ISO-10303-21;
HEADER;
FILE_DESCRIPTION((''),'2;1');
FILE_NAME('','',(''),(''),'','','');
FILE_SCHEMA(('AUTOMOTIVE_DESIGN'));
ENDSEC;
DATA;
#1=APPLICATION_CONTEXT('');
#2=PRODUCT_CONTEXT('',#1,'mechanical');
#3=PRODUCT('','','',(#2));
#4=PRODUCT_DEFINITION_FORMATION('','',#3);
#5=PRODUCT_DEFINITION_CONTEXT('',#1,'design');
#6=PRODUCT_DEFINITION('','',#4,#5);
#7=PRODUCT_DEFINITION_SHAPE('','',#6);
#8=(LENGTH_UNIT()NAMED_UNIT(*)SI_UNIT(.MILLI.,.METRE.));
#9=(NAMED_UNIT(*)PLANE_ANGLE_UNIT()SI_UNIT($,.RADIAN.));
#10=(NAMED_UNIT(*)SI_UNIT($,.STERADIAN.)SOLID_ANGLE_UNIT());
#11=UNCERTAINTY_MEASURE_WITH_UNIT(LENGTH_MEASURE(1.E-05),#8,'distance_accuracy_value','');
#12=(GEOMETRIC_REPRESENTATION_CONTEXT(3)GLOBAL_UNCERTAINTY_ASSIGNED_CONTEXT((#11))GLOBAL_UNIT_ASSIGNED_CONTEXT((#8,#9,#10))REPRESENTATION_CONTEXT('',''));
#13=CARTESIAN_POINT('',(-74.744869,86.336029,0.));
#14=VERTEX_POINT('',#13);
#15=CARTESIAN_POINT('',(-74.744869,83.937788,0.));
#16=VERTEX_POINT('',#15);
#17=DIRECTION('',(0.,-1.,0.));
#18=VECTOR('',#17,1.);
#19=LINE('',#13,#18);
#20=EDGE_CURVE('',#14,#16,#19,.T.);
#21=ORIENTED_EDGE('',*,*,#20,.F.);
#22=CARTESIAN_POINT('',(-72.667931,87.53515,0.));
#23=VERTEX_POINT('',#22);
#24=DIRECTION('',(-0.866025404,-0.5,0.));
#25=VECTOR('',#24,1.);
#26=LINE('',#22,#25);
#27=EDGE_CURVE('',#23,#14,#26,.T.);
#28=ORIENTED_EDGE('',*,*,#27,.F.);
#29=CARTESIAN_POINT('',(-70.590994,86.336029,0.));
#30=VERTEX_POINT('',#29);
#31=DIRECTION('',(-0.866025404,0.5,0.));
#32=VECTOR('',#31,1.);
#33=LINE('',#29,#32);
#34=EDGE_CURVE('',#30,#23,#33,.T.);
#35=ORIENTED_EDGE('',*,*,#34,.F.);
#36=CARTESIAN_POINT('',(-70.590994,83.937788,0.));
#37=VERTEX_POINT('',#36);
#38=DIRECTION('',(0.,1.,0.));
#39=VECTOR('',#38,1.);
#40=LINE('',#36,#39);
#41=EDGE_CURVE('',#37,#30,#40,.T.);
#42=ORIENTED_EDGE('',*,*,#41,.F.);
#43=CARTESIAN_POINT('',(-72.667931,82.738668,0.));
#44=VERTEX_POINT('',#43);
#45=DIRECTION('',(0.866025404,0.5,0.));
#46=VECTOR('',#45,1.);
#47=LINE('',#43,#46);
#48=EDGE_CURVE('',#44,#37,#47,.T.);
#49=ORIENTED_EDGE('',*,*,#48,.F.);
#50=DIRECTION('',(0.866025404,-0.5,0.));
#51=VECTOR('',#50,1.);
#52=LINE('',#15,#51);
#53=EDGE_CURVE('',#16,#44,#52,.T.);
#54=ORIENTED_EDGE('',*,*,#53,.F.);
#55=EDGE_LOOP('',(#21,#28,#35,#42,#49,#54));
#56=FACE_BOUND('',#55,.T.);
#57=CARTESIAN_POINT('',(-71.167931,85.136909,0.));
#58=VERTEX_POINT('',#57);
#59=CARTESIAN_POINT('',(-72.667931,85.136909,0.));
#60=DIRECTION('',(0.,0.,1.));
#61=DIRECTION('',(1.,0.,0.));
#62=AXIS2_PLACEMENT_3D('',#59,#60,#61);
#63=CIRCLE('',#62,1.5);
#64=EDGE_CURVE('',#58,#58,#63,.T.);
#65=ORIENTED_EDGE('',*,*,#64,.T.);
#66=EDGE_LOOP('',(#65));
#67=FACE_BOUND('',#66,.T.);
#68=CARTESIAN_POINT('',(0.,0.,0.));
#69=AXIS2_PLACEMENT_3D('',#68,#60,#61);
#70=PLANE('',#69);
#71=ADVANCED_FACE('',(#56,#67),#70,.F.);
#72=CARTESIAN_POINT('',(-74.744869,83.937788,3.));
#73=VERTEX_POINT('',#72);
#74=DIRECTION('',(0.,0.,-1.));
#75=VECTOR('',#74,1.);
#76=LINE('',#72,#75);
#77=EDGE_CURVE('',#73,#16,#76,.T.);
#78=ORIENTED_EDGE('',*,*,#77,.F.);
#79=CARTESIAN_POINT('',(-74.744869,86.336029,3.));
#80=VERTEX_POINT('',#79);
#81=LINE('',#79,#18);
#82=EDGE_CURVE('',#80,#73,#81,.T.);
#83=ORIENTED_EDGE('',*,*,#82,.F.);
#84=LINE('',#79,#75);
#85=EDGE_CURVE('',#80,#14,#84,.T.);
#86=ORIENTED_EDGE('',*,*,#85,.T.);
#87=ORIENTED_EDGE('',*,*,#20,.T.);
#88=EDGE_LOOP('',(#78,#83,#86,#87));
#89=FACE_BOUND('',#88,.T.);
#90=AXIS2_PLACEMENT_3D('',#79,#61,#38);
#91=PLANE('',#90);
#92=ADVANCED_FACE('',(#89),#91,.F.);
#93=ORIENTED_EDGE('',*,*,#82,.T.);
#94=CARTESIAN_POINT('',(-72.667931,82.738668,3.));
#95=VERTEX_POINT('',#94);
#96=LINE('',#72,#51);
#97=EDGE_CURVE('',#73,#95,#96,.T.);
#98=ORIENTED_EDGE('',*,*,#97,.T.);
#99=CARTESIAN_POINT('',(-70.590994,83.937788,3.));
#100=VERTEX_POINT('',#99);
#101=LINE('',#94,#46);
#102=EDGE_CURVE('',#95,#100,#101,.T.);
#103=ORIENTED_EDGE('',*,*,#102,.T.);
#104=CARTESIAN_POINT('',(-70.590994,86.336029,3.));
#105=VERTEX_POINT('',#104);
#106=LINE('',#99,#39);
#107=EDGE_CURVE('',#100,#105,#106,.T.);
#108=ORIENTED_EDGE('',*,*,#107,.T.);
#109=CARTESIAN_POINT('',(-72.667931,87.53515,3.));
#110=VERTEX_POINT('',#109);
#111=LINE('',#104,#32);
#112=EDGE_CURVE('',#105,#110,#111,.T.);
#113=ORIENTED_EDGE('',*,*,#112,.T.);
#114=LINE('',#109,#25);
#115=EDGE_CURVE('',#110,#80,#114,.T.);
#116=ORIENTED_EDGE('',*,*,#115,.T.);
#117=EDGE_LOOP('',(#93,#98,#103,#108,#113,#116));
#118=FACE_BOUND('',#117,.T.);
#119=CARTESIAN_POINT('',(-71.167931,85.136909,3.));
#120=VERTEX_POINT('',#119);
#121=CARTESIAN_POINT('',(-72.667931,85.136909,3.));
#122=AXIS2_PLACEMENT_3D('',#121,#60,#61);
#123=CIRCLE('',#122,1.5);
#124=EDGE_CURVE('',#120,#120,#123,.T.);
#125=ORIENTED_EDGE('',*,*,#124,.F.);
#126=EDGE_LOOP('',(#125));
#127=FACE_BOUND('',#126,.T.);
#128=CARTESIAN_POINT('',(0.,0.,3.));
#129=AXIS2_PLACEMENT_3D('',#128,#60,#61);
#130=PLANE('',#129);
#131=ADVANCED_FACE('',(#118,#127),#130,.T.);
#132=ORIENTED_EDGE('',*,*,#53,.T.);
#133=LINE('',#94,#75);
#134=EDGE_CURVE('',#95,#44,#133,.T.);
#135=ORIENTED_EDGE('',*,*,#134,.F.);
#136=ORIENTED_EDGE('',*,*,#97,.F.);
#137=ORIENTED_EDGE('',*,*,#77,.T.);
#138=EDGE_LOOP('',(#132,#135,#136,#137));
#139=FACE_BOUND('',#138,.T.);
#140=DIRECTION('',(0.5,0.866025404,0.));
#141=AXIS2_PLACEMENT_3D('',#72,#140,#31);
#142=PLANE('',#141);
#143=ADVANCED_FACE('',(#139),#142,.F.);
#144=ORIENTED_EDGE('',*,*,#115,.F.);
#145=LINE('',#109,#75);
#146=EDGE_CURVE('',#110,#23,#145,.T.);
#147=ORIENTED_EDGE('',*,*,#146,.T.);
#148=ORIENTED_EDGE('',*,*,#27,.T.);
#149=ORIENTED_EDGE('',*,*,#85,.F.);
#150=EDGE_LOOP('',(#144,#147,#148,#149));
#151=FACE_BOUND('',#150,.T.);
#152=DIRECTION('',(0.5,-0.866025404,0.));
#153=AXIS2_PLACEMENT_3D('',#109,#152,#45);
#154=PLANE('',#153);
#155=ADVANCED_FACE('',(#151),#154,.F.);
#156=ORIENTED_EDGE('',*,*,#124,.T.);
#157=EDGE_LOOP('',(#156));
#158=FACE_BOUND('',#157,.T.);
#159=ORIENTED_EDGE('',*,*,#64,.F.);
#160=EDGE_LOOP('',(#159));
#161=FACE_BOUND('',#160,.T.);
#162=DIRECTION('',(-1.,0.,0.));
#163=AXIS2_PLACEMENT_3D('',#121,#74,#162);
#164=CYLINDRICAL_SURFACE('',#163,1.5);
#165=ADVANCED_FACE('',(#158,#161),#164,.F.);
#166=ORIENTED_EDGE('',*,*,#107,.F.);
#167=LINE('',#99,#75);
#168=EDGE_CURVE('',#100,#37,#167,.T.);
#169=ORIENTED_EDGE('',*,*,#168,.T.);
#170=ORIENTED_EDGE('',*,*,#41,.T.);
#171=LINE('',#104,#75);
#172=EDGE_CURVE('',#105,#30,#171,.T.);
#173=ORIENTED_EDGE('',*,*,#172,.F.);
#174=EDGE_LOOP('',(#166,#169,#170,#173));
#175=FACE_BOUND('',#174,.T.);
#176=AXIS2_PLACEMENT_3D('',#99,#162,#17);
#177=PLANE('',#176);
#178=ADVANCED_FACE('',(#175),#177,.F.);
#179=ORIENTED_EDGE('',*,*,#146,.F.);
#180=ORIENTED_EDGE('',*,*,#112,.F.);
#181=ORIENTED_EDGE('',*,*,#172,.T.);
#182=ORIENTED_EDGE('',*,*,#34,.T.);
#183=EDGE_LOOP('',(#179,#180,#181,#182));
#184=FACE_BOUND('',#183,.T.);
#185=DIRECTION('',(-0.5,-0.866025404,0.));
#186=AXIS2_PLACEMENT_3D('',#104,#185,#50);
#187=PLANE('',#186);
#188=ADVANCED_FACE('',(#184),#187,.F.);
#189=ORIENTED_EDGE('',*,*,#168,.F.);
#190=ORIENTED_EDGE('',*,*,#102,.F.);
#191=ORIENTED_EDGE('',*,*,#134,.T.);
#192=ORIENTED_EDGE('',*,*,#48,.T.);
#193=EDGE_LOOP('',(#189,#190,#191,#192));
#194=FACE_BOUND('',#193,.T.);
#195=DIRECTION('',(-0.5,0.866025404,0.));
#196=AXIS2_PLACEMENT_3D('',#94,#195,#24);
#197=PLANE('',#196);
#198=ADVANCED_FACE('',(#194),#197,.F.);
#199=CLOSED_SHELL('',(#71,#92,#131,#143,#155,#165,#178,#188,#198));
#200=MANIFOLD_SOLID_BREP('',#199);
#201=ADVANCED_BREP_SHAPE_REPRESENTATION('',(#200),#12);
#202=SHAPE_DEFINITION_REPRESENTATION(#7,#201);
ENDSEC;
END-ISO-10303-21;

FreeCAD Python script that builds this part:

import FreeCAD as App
import Part
import Sketcher
Q = App.Units.Quantity

doc = App.newDocument("Part")
body = doc.addObject("PartDesign::Body", "Body")

# Sketch on XY plane
sketch1 = doc.addObject("Sketcher::SketchObject", "Sketch")
body.addObject(sketch1)
sketch1.AttachmentSupport = (doc.XY_Plane, [""])
sketch1.MapMode = "FlatFace"
sketch1.addGeometry(Part.LineSegment(App.Vector(-72.7, 82.7, 0), App.Vector(-70.6, 83.9, 0)), False)
sketch1.addGeometry(Part.LineSegment(App.Vector(-70.6, 83.9, 0), App.Vector(-70.6, 86.3, 0)), False)
sketch1.addGeometry(Part.LineSegment(App.Vector(-70.6, 86.3, 0), App.Vector(-72.7, 87.5, 0)), False)
sketch1.addGeometry(Part.LineSegment(App.Vector(-72.7, 87.5, 0), App.Vector(-74.7, 86.3, 0)), False)
sketch1.addGeometry(Part.LineSegment(App.Vector(-74.7, 86.3, 0), App.Vector(-74.7, 83.9, 0)), False)
sketch1.addGeometry(Part.LineSegment(App.Vector(-74.7, 83.9, 0), App.Vector(-72.7, 82.7, 0)), False)
sketch1.addGeometry(Part.Circle(App.Vector(-72.7, 85.1, 0), App.Vector(0, 0, 1), 1.5), False)
sketch1.addConstraint(Sketcher.Constraint("Coincident", 0, 2, 1, 1))
sketch1.addConstraint(Sketcher.Constraint("Coincident", 1, 2, 2, 1))
sketch1.addConstraint(Sketcher.Constraint("Coincident", 2, 2, 3, 1))
sketch1.addConstraint(Sketcher.Constraint("Coincident", 3, 2, 4, 1))
sketch1.addConstraint(Sketcher.Constraint("Coincident", 4, 2, 5, 1))
sketch1.addConstraint(Sketcher.Constraint("Coincident", 5, 2, 0, 1))
sketch1.addConstraint(Sketcher.Constraint("Vertical", 1))
sketch1.addConstraint(Sketcher.Constraint("Vertical", 4))
sketch1.addConstraint(Sketcher.Constraint("Parallel", 0, 3))
sketch1.addConstraint(Sketcher.Constraint("Parallel", 2, 5))
sketch1.addConstraint(Sketcher.Constraint("Horizontal", 1, 2, 3, 2))
sketch1.addConstraint(Sketcher.Constraint("Horizontal", 0, 2, 4, 2))
sketch1.addConstraint(Sketcher.Constraint("Vertical", 6, 3, 2, 2))
sketch1.addConstraint(Sketcher.Constraint("Vertical", 2, 2, 5, 2))
sketch1.addConstraint(Sketcher.Constraint("Diameter", 6, 3.0))
sketch1.addConstraint(Sketcher.Constraint("Angle", 0, Q("30 deg")))
sketch1.addConstraint(Sketcher.Constraint("DistanceY", 1, 1, 1, 2, 2.398241))
sketch1.addConstraint(Sketcher.Constraint("Distance", 0, 2.398241))
sketch1.addConstraint(Sketcher.Constraint("DistanceX", 6, 3, -1, 1, 72.667931))
sketch1.addConstraint(Sketcher.Constraint("DistanceY", -1, 1, 6, 3, 85.136909))
sketch1.addConstraint(Sketcher.Constraint("DistanceY", -1, 1, 0, 2, 83.937788))
pad1 = doc.addObject("PartDesign::Pad", "Pad")
body.addObject(pad1)
pad1.Profile = sketch1
pad1.Length = 3

doc.recompute()
